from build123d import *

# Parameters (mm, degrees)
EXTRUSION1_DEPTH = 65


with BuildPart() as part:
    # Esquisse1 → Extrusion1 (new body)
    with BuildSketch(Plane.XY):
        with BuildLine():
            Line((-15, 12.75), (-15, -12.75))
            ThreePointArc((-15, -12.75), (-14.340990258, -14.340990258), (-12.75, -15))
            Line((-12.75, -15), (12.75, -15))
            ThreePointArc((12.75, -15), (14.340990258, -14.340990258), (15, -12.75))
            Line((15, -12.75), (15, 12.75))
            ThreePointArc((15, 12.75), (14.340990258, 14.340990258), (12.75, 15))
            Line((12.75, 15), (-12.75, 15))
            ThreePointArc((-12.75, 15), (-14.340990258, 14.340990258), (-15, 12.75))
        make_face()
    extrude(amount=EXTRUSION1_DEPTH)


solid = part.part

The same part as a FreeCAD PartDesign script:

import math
import FreeCAD as App
import Part
import Sketcher
Q = App.Units.Quantity

doc = App.newDocument("Part")
body = doc.addObject("PartDesign::Body", "Body")

# Sketch on XY plane
sketch1 = body.newObject("Sketcher::SketchObject", "Sketch")
sketch1.AttachmentSupport = (doc.getObject("XY_Plane"), [""])
sketch1.MapMode = "FlatFace"
sketch1.addGeometry(Part.LineSegment(App.Vector(-15, 12.8, 0), App.Vector(-15, -12.8, 0)), False)
sketch1.addGeometry(Part.ArcOfCircle(Part.Circle(App.Vector(-12.8, -12.8, 0), App.Vector(0, 0, 1), 2.2), math.radians(180), math.radians(270)), False)
sketch1.addGeometry(Part.LineSegment(App.Vector(-12.8, -15, 0), App.Vector(12.8, -15, 0)), False)
sketch1.addGeometry(Part.ArcOfCircle(Part.Circle(App.Vector(12.8, -12.8, 0), App.Vector(0, 0, 1), 2.2), math.radians(-90), math.radians(0)), False)
sketch1.addGeometry(Part.LineSegment(App.Vector(15, -12.8, 0), App.Vector(15, 12.8, 0)), False)
sketch1.addGeometry(Part.ArcOfCircle(Part.Circle(App.Vector(12.8, 12.8, 0), App.Vector(0, 0, 1), 2.2), math.radians(0), math.radians(90)), False)
sketch1.addGeometry(Part.LineSegment(App.Vector(12.8, 15, 0), App.Vector(-12.8, 15, 0)), False)
sketch1.addGeometry(Part.ArcOfCircle(Part.Circle(App.Vector(-12.8, 12.8, 0), App.Vector(0, 0, 1), 2.2), math.radians(90), math.radians(180)), False)
sketch1.addConstraint(Sketcher.Constraint("Tangent", 0, 2, 1, 1))
sketch1.addConstraint(Sketcher.Constraint("Tangent", 1, 2, 2, 1))
sketch1.addConstraint(Sketcher.Constraint("Tangent", 2, 2, 3, 1))
sketch1.addConstraint(Sketcher.Constraint("Tangent", 3, 2, 4, 1))
sketch1.addConstraint(Sketcher.Constraint("Tangent", 4, 2, 5, 1))
sketch1.addConstraint(Sketcher.Constraint("Tangent", 5, 2, 6, 1))
sketch1.addConstraint(Sketcher.Constraint("Tangent", 6, 2, 7, 1))
sketch1.addConstraint(Sketcher.Constraint("Tangent", 7, 2, 0, 1))
sketch1.addConstraint(Sketcher.Constraint("Vertical", 0))
sketch1.addConstraint(Sketcher.Constraint("Horizontal", 2))
sketch1.addConstraint(Sketcher.Constraint("Vertical", 4))
sketch1.addConstraint(Sketcher.Constraint("Horizontal", 6))
sketch1.addConstraint(Sketcher.Constraint("Equal", 1, 3))
sketch1.addConstraint(Sketcher.Constraint("Equal", 3, 5))
sketch1.addConstraint(Sketcher.Constraint("Equal", 5, 7))
sketch1.addConstraint(Sketcher.Constraint("Symmetric", 1, 3, 5, 3, -1, 1))
sketch1.addConstraint(Sketcher.Constraint("Equal", 6, 0))
sketch1.addConstraint(Sketcher.Constraint("Radius", 1, Q("2.25 mm")))
sketch1.addConstraint(Sketcher.Constraint("DistanceX", 2, 1, 2, 2, Q("25.5 mm")))
pad1 = body.newObject("PartDesign::Pad", "Pad")
pad1.Profile = sketch1
pad1.Length = 65

doc.recompute()
